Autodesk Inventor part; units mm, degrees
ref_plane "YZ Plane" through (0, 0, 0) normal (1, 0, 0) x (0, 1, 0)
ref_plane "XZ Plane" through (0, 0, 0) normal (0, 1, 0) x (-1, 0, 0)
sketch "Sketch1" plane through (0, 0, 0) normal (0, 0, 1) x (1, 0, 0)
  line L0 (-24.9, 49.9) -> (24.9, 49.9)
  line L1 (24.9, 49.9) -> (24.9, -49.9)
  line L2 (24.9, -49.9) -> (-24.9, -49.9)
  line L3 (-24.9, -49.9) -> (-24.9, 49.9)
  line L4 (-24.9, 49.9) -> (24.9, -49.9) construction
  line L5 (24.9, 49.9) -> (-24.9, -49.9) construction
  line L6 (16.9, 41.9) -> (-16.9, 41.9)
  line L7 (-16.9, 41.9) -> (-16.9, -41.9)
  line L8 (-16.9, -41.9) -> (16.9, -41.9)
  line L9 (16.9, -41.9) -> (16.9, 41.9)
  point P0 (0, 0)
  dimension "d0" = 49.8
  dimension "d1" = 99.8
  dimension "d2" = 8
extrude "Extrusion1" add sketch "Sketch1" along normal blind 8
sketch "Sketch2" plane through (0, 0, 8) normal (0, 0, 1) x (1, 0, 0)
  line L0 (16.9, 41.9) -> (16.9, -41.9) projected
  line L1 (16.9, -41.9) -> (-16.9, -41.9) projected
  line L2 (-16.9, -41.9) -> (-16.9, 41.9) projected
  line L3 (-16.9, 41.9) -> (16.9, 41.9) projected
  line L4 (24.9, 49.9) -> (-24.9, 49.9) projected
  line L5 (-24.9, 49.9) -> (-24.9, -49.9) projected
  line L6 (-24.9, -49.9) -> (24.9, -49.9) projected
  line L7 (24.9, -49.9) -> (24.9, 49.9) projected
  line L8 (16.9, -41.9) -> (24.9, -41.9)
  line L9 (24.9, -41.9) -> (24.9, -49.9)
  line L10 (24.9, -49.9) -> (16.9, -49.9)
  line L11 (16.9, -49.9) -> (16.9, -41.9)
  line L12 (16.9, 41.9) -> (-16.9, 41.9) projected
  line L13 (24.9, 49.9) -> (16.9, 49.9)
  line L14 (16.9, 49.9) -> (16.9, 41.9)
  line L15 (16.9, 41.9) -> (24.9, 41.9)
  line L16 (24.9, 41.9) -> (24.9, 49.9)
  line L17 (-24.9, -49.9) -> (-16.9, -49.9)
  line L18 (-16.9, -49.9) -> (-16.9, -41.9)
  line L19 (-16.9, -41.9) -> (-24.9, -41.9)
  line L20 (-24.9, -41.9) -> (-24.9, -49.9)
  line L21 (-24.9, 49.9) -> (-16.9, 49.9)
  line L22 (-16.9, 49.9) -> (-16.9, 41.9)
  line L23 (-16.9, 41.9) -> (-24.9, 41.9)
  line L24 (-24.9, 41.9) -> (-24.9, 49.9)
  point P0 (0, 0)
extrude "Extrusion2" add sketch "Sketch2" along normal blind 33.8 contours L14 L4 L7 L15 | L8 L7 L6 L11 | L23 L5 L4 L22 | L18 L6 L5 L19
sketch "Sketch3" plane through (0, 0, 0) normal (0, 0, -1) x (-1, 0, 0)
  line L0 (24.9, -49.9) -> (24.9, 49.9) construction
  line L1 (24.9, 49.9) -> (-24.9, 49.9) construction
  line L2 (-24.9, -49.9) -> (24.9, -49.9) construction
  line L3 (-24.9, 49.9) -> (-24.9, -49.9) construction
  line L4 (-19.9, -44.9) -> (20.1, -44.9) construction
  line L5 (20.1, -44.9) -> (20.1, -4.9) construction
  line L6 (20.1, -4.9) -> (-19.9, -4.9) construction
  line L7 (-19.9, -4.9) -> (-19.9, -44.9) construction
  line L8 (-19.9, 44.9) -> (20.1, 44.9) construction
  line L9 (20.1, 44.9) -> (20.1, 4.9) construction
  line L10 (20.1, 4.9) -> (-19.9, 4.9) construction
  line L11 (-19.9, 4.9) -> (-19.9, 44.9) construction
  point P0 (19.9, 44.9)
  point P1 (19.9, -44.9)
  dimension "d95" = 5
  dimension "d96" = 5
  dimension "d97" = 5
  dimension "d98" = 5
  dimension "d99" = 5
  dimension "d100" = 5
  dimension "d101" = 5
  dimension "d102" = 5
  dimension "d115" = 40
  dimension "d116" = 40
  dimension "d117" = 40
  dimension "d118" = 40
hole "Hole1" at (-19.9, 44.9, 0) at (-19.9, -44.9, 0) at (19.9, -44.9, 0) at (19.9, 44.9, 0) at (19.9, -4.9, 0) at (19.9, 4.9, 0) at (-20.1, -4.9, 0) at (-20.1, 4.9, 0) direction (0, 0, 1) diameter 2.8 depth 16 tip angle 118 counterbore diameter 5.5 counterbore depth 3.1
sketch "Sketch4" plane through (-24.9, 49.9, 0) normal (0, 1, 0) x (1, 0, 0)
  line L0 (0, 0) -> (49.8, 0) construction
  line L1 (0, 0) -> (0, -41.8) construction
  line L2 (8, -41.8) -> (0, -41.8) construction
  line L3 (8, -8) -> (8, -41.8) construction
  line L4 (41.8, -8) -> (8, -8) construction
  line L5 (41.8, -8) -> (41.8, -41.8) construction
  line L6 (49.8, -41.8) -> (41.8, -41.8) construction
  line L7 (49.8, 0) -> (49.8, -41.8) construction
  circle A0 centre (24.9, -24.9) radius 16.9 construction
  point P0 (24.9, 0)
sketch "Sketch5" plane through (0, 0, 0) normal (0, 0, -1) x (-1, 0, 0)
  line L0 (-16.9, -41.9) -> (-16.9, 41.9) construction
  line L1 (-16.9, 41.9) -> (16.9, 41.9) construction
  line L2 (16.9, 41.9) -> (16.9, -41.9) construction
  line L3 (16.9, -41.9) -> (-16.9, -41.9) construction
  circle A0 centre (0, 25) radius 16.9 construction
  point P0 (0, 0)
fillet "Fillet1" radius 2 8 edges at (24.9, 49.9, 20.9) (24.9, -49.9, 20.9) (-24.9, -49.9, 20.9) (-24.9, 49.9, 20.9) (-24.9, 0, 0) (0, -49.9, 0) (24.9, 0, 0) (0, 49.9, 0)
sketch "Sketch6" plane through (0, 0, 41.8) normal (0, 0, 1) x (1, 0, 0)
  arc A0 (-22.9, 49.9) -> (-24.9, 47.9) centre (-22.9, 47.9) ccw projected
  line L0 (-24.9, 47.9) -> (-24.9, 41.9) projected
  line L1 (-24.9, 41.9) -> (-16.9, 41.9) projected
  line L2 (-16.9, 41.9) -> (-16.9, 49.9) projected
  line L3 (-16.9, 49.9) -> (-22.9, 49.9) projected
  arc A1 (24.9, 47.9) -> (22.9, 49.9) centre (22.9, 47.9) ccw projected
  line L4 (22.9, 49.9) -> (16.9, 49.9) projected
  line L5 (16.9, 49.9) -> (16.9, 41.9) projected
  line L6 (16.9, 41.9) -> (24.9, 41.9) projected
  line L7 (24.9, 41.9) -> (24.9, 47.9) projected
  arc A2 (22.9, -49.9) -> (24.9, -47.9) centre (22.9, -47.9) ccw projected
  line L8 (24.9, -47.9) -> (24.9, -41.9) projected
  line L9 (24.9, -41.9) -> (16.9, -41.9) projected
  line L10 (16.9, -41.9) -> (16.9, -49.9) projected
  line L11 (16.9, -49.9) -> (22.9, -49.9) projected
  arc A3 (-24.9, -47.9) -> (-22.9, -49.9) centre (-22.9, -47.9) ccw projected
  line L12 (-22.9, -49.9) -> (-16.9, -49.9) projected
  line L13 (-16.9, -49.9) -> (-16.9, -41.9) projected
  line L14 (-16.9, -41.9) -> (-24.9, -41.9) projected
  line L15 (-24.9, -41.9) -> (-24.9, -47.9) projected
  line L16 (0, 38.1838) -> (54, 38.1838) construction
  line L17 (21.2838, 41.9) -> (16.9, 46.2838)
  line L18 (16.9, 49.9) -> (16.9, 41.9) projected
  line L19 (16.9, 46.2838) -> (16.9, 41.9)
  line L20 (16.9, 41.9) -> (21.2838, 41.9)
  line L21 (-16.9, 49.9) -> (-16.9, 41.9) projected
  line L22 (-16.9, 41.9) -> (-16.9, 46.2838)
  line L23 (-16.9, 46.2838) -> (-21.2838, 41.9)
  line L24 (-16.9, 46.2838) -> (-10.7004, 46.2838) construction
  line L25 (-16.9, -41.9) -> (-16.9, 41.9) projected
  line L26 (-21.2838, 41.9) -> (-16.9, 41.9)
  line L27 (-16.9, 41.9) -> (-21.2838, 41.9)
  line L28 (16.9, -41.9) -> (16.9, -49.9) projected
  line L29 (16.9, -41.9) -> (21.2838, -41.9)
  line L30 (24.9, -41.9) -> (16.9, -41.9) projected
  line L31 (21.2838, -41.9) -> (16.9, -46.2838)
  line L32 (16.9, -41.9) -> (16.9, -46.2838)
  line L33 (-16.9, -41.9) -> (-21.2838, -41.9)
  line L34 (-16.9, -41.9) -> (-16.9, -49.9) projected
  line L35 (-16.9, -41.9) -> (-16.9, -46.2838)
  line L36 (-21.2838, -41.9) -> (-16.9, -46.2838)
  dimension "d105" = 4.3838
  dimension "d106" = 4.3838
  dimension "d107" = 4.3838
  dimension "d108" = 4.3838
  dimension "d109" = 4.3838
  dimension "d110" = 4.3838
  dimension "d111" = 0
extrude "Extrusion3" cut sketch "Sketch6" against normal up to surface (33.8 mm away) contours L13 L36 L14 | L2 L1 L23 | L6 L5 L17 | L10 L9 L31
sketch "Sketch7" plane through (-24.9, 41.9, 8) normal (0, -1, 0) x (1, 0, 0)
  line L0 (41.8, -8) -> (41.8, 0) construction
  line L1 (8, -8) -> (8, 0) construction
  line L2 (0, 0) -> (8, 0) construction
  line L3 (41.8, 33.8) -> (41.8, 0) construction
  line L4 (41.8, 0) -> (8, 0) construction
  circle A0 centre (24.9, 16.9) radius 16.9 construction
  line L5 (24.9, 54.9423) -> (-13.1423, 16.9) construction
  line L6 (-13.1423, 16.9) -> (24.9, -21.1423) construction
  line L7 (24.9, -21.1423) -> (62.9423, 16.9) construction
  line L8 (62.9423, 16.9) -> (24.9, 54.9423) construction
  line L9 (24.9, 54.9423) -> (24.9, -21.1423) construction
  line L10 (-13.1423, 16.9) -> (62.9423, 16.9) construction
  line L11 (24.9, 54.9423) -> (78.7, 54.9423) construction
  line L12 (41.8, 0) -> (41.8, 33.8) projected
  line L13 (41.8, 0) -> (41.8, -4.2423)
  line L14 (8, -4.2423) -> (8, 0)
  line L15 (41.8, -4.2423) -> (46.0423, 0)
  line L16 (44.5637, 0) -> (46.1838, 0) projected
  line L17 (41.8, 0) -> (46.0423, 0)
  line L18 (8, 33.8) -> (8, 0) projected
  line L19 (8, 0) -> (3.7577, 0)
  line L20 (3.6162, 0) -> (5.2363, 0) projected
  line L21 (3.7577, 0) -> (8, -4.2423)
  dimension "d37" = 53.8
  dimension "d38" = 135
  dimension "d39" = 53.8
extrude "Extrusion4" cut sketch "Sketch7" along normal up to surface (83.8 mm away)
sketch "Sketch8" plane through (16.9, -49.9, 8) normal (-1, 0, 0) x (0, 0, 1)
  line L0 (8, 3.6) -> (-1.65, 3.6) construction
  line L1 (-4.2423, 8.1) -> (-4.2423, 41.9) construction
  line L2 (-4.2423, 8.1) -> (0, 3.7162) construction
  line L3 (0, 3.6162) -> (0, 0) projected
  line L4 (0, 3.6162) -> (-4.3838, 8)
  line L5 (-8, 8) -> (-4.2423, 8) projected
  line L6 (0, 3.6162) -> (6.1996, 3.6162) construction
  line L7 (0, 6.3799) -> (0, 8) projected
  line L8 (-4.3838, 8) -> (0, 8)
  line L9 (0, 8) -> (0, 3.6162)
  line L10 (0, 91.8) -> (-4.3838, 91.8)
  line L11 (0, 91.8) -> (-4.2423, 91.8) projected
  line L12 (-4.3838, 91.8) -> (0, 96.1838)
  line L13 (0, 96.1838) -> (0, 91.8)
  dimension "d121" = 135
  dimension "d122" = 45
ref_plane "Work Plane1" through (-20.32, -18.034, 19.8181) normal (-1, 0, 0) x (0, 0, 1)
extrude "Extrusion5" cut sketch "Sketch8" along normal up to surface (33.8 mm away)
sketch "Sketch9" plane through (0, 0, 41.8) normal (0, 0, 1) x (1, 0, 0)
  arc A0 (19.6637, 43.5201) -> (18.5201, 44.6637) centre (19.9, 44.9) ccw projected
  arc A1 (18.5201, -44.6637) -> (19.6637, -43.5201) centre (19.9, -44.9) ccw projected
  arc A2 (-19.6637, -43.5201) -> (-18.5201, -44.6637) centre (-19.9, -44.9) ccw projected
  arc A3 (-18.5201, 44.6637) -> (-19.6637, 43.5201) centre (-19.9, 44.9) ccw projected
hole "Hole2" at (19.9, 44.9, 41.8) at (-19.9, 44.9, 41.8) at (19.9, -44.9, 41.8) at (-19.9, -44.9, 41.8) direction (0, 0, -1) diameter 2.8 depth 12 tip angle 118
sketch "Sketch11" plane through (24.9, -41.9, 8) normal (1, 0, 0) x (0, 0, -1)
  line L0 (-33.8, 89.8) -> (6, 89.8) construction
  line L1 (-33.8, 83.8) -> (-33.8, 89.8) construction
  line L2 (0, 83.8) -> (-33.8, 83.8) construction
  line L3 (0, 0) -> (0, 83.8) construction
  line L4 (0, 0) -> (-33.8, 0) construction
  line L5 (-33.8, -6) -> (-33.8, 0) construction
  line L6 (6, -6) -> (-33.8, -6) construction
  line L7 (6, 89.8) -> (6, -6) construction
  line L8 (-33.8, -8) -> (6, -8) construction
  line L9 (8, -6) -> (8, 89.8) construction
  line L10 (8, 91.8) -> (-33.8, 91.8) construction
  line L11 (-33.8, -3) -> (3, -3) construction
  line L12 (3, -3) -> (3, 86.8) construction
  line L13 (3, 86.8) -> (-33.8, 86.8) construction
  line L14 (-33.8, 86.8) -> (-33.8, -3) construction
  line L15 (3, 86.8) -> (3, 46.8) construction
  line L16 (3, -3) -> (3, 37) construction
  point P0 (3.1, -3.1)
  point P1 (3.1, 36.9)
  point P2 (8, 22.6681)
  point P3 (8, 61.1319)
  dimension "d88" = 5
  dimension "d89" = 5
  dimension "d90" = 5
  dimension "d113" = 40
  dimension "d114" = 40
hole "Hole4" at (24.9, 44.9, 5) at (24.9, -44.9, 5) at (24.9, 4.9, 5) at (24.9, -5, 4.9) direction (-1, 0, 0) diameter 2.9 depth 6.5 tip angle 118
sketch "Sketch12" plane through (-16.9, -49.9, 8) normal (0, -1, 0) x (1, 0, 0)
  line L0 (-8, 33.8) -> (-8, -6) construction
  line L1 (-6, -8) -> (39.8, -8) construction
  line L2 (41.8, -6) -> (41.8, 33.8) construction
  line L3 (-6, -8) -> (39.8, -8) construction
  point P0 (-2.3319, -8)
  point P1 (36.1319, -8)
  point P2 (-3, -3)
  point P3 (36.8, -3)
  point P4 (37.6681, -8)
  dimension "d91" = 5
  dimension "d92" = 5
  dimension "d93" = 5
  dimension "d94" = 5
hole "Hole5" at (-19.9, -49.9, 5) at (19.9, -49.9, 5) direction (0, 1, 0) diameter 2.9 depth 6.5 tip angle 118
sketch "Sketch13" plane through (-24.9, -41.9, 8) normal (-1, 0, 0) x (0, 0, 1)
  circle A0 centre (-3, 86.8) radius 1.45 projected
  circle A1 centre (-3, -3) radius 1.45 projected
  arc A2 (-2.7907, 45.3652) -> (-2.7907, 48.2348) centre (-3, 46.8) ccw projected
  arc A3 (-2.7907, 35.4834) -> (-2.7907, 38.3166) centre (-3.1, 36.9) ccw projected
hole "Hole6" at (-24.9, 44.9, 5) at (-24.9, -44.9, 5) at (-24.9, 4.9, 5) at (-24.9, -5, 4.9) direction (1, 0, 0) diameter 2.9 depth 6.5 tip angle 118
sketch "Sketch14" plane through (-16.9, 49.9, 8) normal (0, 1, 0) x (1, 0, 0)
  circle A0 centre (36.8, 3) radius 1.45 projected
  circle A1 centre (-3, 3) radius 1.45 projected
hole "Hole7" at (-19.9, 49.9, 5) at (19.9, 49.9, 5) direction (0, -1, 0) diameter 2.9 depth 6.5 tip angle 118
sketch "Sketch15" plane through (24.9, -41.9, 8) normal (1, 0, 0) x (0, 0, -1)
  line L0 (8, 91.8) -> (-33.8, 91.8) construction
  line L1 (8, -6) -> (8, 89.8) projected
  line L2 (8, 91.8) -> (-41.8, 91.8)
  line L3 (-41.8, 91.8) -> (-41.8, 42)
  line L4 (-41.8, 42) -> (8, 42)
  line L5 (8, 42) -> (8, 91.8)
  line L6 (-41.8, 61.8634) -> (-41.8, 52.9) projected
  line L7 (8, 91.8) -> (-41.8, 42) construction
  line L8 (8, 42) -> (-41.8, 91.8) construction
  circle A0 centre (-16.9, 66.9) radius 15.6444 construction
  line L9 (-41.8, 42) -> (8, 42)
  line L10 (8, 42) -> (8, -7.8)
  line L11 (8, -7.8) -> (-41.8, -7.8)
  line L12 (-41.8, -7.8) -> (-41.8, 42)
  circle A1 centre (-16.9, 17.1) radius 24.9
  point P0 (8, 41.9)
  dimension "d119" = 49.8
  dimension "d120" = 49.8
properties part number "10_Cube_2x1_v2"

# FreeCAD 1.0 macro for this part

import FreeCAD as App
import Part
import Sketcher


def edges_at(feature, points):
    """Names of the edges that pass closest to the given points."""
    edges = feature.Shape.Edges
    near = lambda p: min(range(len(edges)), key=lambda i: edges[i].distToShape(Part.Vertex(*p))[0])
    return sorted({f"Edge{near(p) + 1}" for p in points})


def add_polygon(sketch, points):
    """Adds a closed chain of lines whose ends are joined by coincident constraints."""
    first, n = sketch.GeometryCount, len(points)
    for a, b in zip(points, points[1:] + points[:1]):
        sketch.addGeometry(Part.LineSegment(App.Vector(*a, 0), App.Vector(*b, 0)), False)
    for i in range(n):
        sketch.addConstraint(Sketcher.Constraint("Coincident", first + i, 2, first + (i + 1) % n, 1))

doc = App.newDocument("Part")
body = doc.addObject("PartDesign::Body", "Body")

# Sketch on XY plane
sketch1 = body.newObject("Sketcher::SketchObject", "Sketch")
sketch1.AttachmentSupport = (doc.getObject("XY_Plane"), [""])
sketch1.MapMode = "FlatFace"
add_polygon(sketch1, [(25, 50), (-25, 50), (-25, -50), (25, -50)])  # lines 0-3
add_polygon(sketch1, [(-17, 42), (17, 42), (17, -42), (-17, -42)])  # lines 4-7
sketch1.addConstraint([
    Sketcher.Constraint("Horizontal", 0),
    Sketcher.Constraint("Vertical", 1),
    Sketcher.Constraint("Horizontal", 2),
    Sketcher.Constraint("Vertical", 3),
    Sketcher.Constraint("Horizontal", 4),
    Sketcher.Constraint("Vertical", 5),
    Sketcher.Constraint("Horizontal", 6),
    Sketcher.Constraint("Vertical", 7),
    Sketcher.Constraint("Symmetric", 0, 2, 2, 2, -1, 1),
    Sketcher.Constraint("Symmetric", 4, 2, 6, 2, -1, 1),
    Sketcher.Constraint("DistanceX", 0, 2, 0, 1, 49.8),
    Sketcher.Constraint("DistanceY", 1, 2, 1, 1, 99.8),
    Sketcher.Constraint("DistanceX", 4, 2, 3, 2, 8.0),
    Sketcher.Constraint("DistanceY", 4, 2, 3, 2, 8.0),
])
pad1 = body.newObject("PartDesign::Pad", "Pad")
pad1.Profile = sketch1
pad1.Length = 8

# Sketch on XY plane
sketch2 = body.newObject("Sketcher::SketchObject", "Sketch001")
sketch2.AttachmentSupport = (doc.getObject("XY_Plane"), [""])
sketch2.MapMode = "FlatFace"
sketch2.AttachmentOffset = App.Placement(App.Vector(0, 0, 8), App.Rotation())
add_polygon(sketch2, [(17, 50), (17, 42), (25, 42), (25, 50)])  # lines 0-3
add_polygon(sketch2, [(25, -42), (17, -42), (17, -50), (25, -50)])  # lines 4-7
add_polygon(sketch2, [(-25, 42), (-17, 42), (-17, 50), (-25, 50)])  # lines 8-11
add_polygon(sketch2, [(-17, -50), (-17, -42), (-25, -42), (-25, -50)])  # lines 12-15
sketch2.addConstraint([
    Sketcher.Constraint("Vertical", 0),
    Sketcher.Constraint("Horizontal", 1),
    Sketcher.Constraint("Vertical", 2),
    Sketcher.Constraint("Horizontal", 3),
    Sketcher.Constraint("Horizontal", 4),
    Sketcher.Constraint("Vertical", 5),
    Sketcher.Constraint("Horizontal", 6),
    Sketcher.Constraint("Vertical", 7),
    Sketcher.Constraint("Horizontal", 8),
    Sketcher.Constraint("Vertical", 9),
    Sketcher.Constraint("Horizontal", 10),
    Sketcher.Constraint("Vertical", 11),
    Sketcher.Constraint("Vertical", 12),
    Sketcher.Constraint("Horizontal", 13),
    Sketcher.Constraint("Vertical", 14),
    Sketcher.Constraint("Horizontal", 15),
    Sketcher.Constraint("Symmetric", 4, 2, 8, 2, -1, 1),
    Sketcher.Constraint("Symmetric", 6, 2, 10, 2, -1, 1),
    Sketcher.Constraint("Symmetric", 0, 2, 12, 2, -1, 1),
    Sketcher.Constraint("Symmetric", 2, 2, 14, 2, -1, 1),
    Sketcher.Constraint("Symmetric", 0, 2, 8, 2, -2),
    Sketcher.Constraint("Symmetric", 2, 2, 10, 2, -2),
    Sketcher.Constraint("Equal", 15, 0),
    Sketcher.Constraint("DistanceX", 1, 1, 1, 2, 8.0),
    Sketcher.Constraint("DistanceX", -1, 1, 0, 2, 16.9),
    Sketcher.Constraint("DistanceY", -1, 1, 0, 2, 41.9),
])
pad2 = body.newObject("PartDesign::Pad", "Pad001")
pad2.Profile = sketch2
pad2.Length = 33.8

# Sketch on XY plane
sketch3 = body.newObject("Sketcher::SketchObject", "Sketch002")
sketch3.AttachmentSupport = (doc.getObject("XY_Plane"), [""])
sketch3.MapMode = "FlatFace"
sketch3.addGeometry([
    Part.Circle(App.Vector(-19.9, 44.9, 0), App.Vector(0, 0, 1), 1.4),  # 0
    Part.Circle(App.Vector(-19.9, -44.9, 0), App.Vector(0, 0, 1), 1.4),  # 1
    Part.Circle(App.Vector(19.9, -44.9, 0), App.Vector(0, 0, 1), 1.4),  # 2
    Part.Circle(App.Vector(19.9, 44.9, 0), App.Vector(0, 0, 1), 1.4),  # 3
    Part.Circle(App.Vector(19.9, -4.9, 0), App.Vector(0, 0, 1), 1.4),  # 4
    Part.Circle(App.Vector(19.9, 4.9, 0), App.Vector(0, 0, 1), 1.4),  # 5
    Part.Circle(App.Vector(-20.1, -4.9, 0), App.Vector(0, 0, 1), 1.4),  # 6
    Part.Circle(App.Vector(-20.1, 4.9, 0), App.Vector(0, 0, 1), 1.4),  # 7
], False)
sketch3.addConstraint([
    Sketcher.Constraint("Equal", 0, 1),
    Sketcher.Constraint("Equal", 1, 2),
    Sketcher.Constraint("Equal", 2, 3),
    Sketcher.Constraint("Equal", 3, 4),
    Sketcher.Constraint("Equal", 4, 5),
    Sketcher.Constraint("Equal", 5, 6),
    Sketcher.Constraint("Equal", 6, 7),
    Sketcher.Constraint("Symmetric", 0, 3, 2, 3, -1, 1),
    Sketcher.Constraint("Symmetric", 1, 3, 3, 3, -1, 1),
    Sketcher.Constraint("Symmetric", 1, 3, 2, 3, -2),
    Sketcher.Constraint("Symmetric", 4, 3, 5, 3, -1),
    Sketcher.Constraint("Symmetric", 6, 3, 7, 3, -1),
    Sketcher.Constraint("Horizontal", 4, 3, 6, 3),
    Sketcher.Constraint("Vertical", 3, 3, 4, 3),
    Sketcher.Constraint("Diameter", 0, 2.8),
    Sketcher.Constraint("DistanceY", 2, 3, 4, 3, 40.0),
    Sketcher.Constraint("DistanceX", 6, 3, 4, 3, 40.0),
    Sketcher.Constraint("DistanceX", 0, 3, -1, 1, 19.9),
    Sketcher.Constraint("DistanceY", -1, 1, 0, 3, 44.9),
])
doc.recompute()
hole = body.newObject("PartDesign::Hole", "Hole")
hole.Profile = sketch3
hole.ThreadType = "None"
hole.Diameter = 2.8
hole.DepthType = "Dimension"
hole.Depth = 16
hole.DrillPoint = "Angled"
hole.DrillPointAngle = 118
hole.HoleCutType = "Counterbore"
hole.HoleCutDiameter = 5.5
hole.HoleCutDepth = 3.1
hole.Reversed = True
doc.recompute()

fillet = body.newObject("PartDesign::Fillet", "Fillet")
fillet.Base = (hole, edges_at(hole, [
    (24.9, 49.9, 20.9),
    (24.9, -49.9, 20.9),
    (-24.9, -49.9, 20.9),
    (-24.9, 49.9, 20.9),
    (-24.9, 0, 0),
    (0, -49.9, 0),
    (24.9, 0, 0),
    (0, 49.9, 0),
]))
fillet.Radius = 2

# Sketch on XY plane
sketch4 = body.newObject("Sketcher::SketchObject", "Sketch003")
sketch4.AttachmentSupport = (doc.getObject("XY_Plane"), [""])
sketch4.MapMode = "FlatFace"
sketch4.AttachmentOffset = App.Placement(App.Vector(0, 0, 41.8), App.Rotation())
add_polygon(sketch4, [(-16.9, -46.3), (-16.9, -41.9), (-21.3, -41.9)])  # lines 0-2
add_polygon(sketch4, [(-16.9, 41.9), (-16.9, 46.3), (-21.3, 41.9)])  # lines 3-5
add_polygon(sketch4, [(16.9, 41.9), (21.3, 41.9), (16.9, 46.3)])  # lines 6-8
add_polygon(sketch4, [(16.9, -41.9), (16.9, -46.3), (21.3, -41.9)])  # lines 9-11
sketch4.addConstraint([
    Sketcher.Constraint("Vertical", 0),
    Sketcher.Constraint("Horizontal", 1),
    Sketcher.Constraint("Vertical", 3),
    Sketcher.Constraint("Horizontal", 5),
    Sketcher.Constraint("Horizontal", 6),
    Sketcher.Constraint("Vertical", 8),
    Sketcher.Constraint("Vertical", 9),
    Sketcher.Constraint("Horizontal", 11),
    Sketcher.Constraint("Symmetric", 1, 2, 6, 2, -1, 1),
    Sketcher.Constraint("Symmetric", 2, 2, 7, 2, -1, 1),
    Sketcher.Constraint("Symmetric", 3, 2, 9, 2, -1, 1),
    Sketcher.Constraint("Symmetric", 4, 2, 10, 2, -1, 1),
    Sketcher.Constraint("Symmetric", 4, 2, 6, 2, -2),
    Sketcher.Constraint("Symmetric", 3, 2, 7, 2, -2),
    Sketcher.Constraint("Perpendicular", 2, 4),
    Sketcher.Constraint("DistanceX", 1, 2, 1, 1, 4.3838),
    Sketcher.Constraint("DistanceX", 0, 2, -1, 1, 16.9),
    Sketcher.Constraint("DistanceY", 0, 2, -1, 1, 41.9),
])
pocket1 = body.newObject("PartDesign::Pocket", "Pocket")
pocket1.Profile = sketch4
pocket1.Length = 33.8

# Sketch on XZ plane
sketch5 = body.newObject("Sketcher::SketchObject", "Sketch004")
sketch5.AttachmentSupport = (doc.getObject("XZ_Plane"), [""])
sketch5.MapMode = "FlatFace"
sketch5.AttachmentOffset = App.Placement(App.Vector(0, 0, -41.9), App.Rotation())
add_polygon(sketch5, [(21.1, 8), (16.9, 8), (16.9, 3.8)])  # lines 0-2
add_polygon(sketch5, [(-21.1, 8), (-16.9, 3.8), (-16.9, 8)])  # lines 3-5
sketch5.addConstraint([
    Sketcher.Constraint("Horizontal", 0),
    Sketcher.Constraint("Vertical", 1),
    Sketcher.Constraint("Vertical", 4),
    Sketcher.Constraint("Horizontal", 5),
    Sketcher.Constraint("Symmetric", 1, 2, 3, 2, -2),
    Sketcher.Constraint("Symmetric", 2, 2, 5, 2, -2),
    Sketcher.Constraint("Perpendicular", 2, 3),
    Sketcher.Constraint("DistanceY", -1, 1, 0, 2, 8.0),
    Sketcher.Constraint("DistanceX", -1, 1, 0, 2, 16.9),
    Sketcher.Constraint("DistanceX", 0, 2, 0, 1, 4.2423),
])
pocket2 = body.newObject("PartDesign::Pocket", "Pocket001")
pocket2.Profile = sketch5
pocket2.Length = 83.8
pocket2.Reversed = True

# Sketch on YZ plane
sketch6 = body.newObject("Sketcher::SketchObject", "Sketch005")
sketch6.AttachmentSupport = (doc.getObject("YZ_Plane"), [""])
sketch6.MapMode = "FlatFace"
sketch6.AttachmentOffset = App.Placement(App.Vector(0, 0, 16.9), App.Rotation())
add_polygon(sketch6, [(-41.9, 3.6), (-46.3, 8), (-41.9, 8)])  # lines 0-2
add_polygon(sketch6, [(41.9, 3.6), (41.9, 8), (46.3, 8)])  # lines 3-5
sketch6.addConstraint([
    Sketcher.Constraint("Horizontal", 1),
    Sketcher.Constraint("Vertical", 2),
    Sketcher.Constraint("Vertical", 3),
    Sketcher.Constraint("Horizontal", 4),
    Sketcher.Constraint("Symmetric", 1, 2, 3, 2, -2),
    Sketcher.Constraint("Perpendicular", 0, 5),
    Sketcher.Constraint("Horizontal", 2, 2, 5, 2),
    Sketcher.Constraint("Equal", 1, 4),
    Sketcher.Constraint("DistanceY", -1, 1, 0, 2, 8.0),
    Sketcher.Constraint("DistanceX", 1, 2, -1, 1, 41.9),
    Sketcher.Constraint("DistanceX", 1, 1, 1, 2, 4.3838),
])
pocket3 = body.newObject("PartDesign::Pocket", "Pocket002")
pocket3.Profile = sketch6
pocket3.Length = 33.8

# Sketch on XY plane
sketch7 = body.newObject("Sketcher::SketchObject", "Sketch006")
sketch7.AttachmentSupport = (doc.getObject("XY_Plane"), [""])
sketch7.MapMode = "FlatFace"
sketch7.AttachmentOffset = App.Placement(App.Vector(0, 0, 41.8), App.Rotation())
sketch7.addGeometry([
    Part.Circle(App.Vector(19.9, 44.9, 0), App.Vector(0, 0, 1), 1.4),
    Part.Circle(App.Vector(-19.9, 44.9, 0), App.Vector(0, 0, 1), 1.4),
    Part.Circle(App.Vector(19.9, -44.9, 0), App.Vector(0, 0, 1), 1.4),
    Part.Circle(App.Vector(-19.9, -44.9, 0), App.Vector(0, 0, 1), 1.4),
], False)
sketch7.addConstraint([
    Sketcher.Constraint("Equal", 0, 1),
    Sketcher.Constraint("Equal", 1, 2),
    Sketcher.Constraint("Equal", 2, 3),
    Sketcher.Constraint("Symmetric", 1, 3, 2, 3, -1, 1),
    Sketcher.Constraint("Symmetric", 0, 3, 3, 3, -1, 1),
    Sketcher.Constraint("Symmetric", 0, 3, 1, 3, -2),
    Sketcher.Constraint("Diameter", 0, 2.8),
    Sketcher.Constraint("DistanceX", -1, 1, 0, 3, 19.9),
    Sketcher.Constraint("DistanceY", -1, 1, 0, 3, 44.9),
])
doc.recompute()
hole2 = body.newObject("PartDesign::Hole", "Hole001")
hole2.Profile = sketch7
hole2.ThreadType = "None"
hole2.Diameter = 2.8
hole2.DepthType = "Dimension"
hole2.Depth = 12
hole2.DrillPoint = "Angled"
hole2.DrillPointAngle = 118

# Sketch on YZ plane
sketch8 = body.newObject("Sketcher::SketchObject", "Sketch007")
sketch8.AttachmentSupport = (doc.getObject("YZ_Plane"), [""])
sketch8.MapMode = "FlatFace"
sketch8.AttachmentOffset = App.Placement(App.Vector(0, 0, 24.9), App.Rotation())
sketch8.addGeometry([
    Part.Circle(App.Vector(44.9, 5, 0), App.Vector(0, 0, 1), 1.4),
    Part.Circle(App.Vector(-44.9, 5, 0), App.Vector(0, 0, 1), 1.4),
    Part.Circle(App.Vector(4.9, 5, 0), App.Vector(0, 0, 1), 1.4),
    Part.Circle(App.Vector(-5, 4.9, 0), App.Vector(0, 0, 1), 1.4),
], False)
sketch8.addConstraint([
    Sketcher.Constraint("Equal", 0, 1),
    Sketcher.Constraint("Equal", 1, 2),
    Sketcher.Constraint("Equal", 2, 3),
    Sketcher.Constraint("Symmetric", 0, 3, 1, 3, -2),
    Sketcher.Constraint("Horizontal", 1, 3, 2, 3),
    Sketcher.Constraint("Diameter", 0, 2.9),
    Sketcher.Constraint("DistanceY", -1, 1, 0, 3, 5.0),
    Sketcher.Constraint("DistanceX", 3, 3, -1, 1, 5.0),
    Sketcher.Constraint("DistanceX", 2, 3, 0, 3, 40.0),
    Sketcher.Constraint("DistanceX", -1, 1, 0, 3, 44.9),
    Sketcher.Constraint("DistanceY", -1, 1, 3, 3, 4.9),
])
doc.recompute()
hole3 = body.newObject("PartDesign::Hole", "Hole002")
hole3.Profile = sketch8
hole3.ThreadType = "None"
hole3.Diameter = 2.9
hole3.DepthType = "Dimension"
hole3.Depth = 6.5
hole3.DrillPoint = "Angled"
hole3.DrillPointAngle = 118

# Sketch on XZ plane
sketch9 = body.newObject("Sketcher::SketchObject", "Sketch008")
sketch9.AttachmentSupport = (doc.getObject("XZ_Plane"), [""])
sketch9.MapMode = "FlatFace"
sketch9.AttachmentOffset = App.Placement(App.Vector(0, 0, 49.9), App.Rotation())
sketch9.addGeometry([
    Part.Circle(App.Vector(-19.9, 5, 0), App.Vector(0, 0, 1), 1.4),
    Part.Circle(App.Vector(19.9, 5, 0), App.Vector(0, 0, 1), 1.4),
], False)
sketch9.addConstraint([
    Sketcher.Constraint("Equal", 0, 1),
    Sketcher.Constraint("Symmetric", 0, 3, 1, 3, -2),
    Sketcher.Constraint("Diameter", 0, 2.9),
    Sketcher.Constraint("DistanceY", -1, 1, 0, 3, 5.0),
    Sketcher.Constraint("DistanceX", 0, 3, -1, 1, 19.9),
])
doc.recompute()
hole4 = body.newObject("PartDesign::Hole", "Hole003")
hole4.Profile = sketch9
hole4.ThreadType = "None"
hole4.Diameter = 2.9
hole4.DepthType = "Dimension"
hole4.Depth = 6.5
hole4.DrillPoint = "Angled"
hole4.DrillPointAngle = 118

# Sketch on YZ plane
sketch10 = body.newObject("Sketcher::SketchObject", "Sketch009")
sketch10.AttachmentSupport = (doc.getObject("YZ_Plane"), [""])
sketch10.MapMode = "FlatFace"
sketch10.AttachmentOffset = App.Placement(App.Vector(0, 0, -24.9), App.Rotation())
sketch10.addGeometry([
    Part.Circle(App.Vector(44.9, 5, 0), App.Vector(0, 0, 1), 1.4),
    Part.Circle(App.Vector(-44.9, 5, 0), App.Vector(0, 0, 1), 1.4),
    Part.Circle(App.Vector(4.9, 5, 0), App.Vector(0, 0, 1), 1.4),
    Part.Circle(App.Vector(-5, 4.9, 0), App.Vector(0, 0, 1), 1.4),
], False)
sketch10.addConstraint([
    Sketcher.Constraint("Equal", 0, 1),
    Sketcher.Constraint("Equal", 1, 2),
    Sketcher.Constraint("Equal", 2, 3),
    Sketcher.Constraint("Symmetric", 0, 3, 1, 3, -2),
    Sketcher.Constraint("Horizontal", 1, 3, 2, 3),
    Sketcher.Constraint("Diameter", 0, 2.9),
    Sketcher.Constraint("DistanceY", -1, 1, 0, 3, 5.0),
    Sketcher.Constraint("DistanceX", 3, 3, -1, 1, 5.0),
    Sketcher.Constraint("DistanceX", 2, 3, 0, 3, 40.0),
    Sketcher.Constraint("DistanceX", -1, 1, 0, 3, 44.9),
    Sketcher.Constraint("DistanceY", -1, 1, 3, 3, 4.9),
])
doc.recompute()
hole5 = body.newObject("PartDesign::Hole", "Hole004")
hole5.Profile = sketch10
hole5.ThreadType = "None"
hole5.Diameter = 2.9
hole5.DepthType = "Dimension"
hole5.Depth = 6.5
hole5.DrillPoint = "Angled"
hole5.DrillPointAngle = 118
hole5.Reversed = True

# Sketch on XZ plane
sketch11 = body.newObject("Sketcher::SketchObject", "Sketch010")
sketch11.AttachmentSupport = (doc.getObject("XZ_Plane"), [""])
sketch11.MapMode = "FlatFace"
sketch11.AttachmentOffset = App.Placement(App.Vector(0, 0, -49.9), App.Rotation())
sketch11.addGeometry([
    Part.Circle(App.Vector(-19.9, 5, 0), App.Vector(0, 0, 1), 1.4),
    Part.Circle(App.Vector(19.9, 5, 0), App.Vector(0, 0, 1), 1.4),
], False)
sketch11.addConstraint([
    Sketcher.Constraint("Equal", 0, 1),
    Sketcher.Constraint("Symmetric", 0, 3, 1, 3, -2),
    Sketcher.Constraint("Diameter", 0, 2.9),
    Sketcher.Constraint("DistanceY", -1, 1, 0, 3, 5.0),
    Sketcher.Constraint("DistanceX", 0, 3, -1, 1, 19.9),
])
doc.recompute()
hole6 = body.newObject("PartDesign::Hole", "Hole005")
hole6.Profile = sketch11
hole6.ThreadType = "None"
hole6.Diameter = 2.9
hole6.DepthType = "Dimension"
hole6.Depth = 6.5
hole6.DrillPoint = "Angled"
hole6.DrillPointAngle = 118
hole6.Reversed = True

doc.recompute()
